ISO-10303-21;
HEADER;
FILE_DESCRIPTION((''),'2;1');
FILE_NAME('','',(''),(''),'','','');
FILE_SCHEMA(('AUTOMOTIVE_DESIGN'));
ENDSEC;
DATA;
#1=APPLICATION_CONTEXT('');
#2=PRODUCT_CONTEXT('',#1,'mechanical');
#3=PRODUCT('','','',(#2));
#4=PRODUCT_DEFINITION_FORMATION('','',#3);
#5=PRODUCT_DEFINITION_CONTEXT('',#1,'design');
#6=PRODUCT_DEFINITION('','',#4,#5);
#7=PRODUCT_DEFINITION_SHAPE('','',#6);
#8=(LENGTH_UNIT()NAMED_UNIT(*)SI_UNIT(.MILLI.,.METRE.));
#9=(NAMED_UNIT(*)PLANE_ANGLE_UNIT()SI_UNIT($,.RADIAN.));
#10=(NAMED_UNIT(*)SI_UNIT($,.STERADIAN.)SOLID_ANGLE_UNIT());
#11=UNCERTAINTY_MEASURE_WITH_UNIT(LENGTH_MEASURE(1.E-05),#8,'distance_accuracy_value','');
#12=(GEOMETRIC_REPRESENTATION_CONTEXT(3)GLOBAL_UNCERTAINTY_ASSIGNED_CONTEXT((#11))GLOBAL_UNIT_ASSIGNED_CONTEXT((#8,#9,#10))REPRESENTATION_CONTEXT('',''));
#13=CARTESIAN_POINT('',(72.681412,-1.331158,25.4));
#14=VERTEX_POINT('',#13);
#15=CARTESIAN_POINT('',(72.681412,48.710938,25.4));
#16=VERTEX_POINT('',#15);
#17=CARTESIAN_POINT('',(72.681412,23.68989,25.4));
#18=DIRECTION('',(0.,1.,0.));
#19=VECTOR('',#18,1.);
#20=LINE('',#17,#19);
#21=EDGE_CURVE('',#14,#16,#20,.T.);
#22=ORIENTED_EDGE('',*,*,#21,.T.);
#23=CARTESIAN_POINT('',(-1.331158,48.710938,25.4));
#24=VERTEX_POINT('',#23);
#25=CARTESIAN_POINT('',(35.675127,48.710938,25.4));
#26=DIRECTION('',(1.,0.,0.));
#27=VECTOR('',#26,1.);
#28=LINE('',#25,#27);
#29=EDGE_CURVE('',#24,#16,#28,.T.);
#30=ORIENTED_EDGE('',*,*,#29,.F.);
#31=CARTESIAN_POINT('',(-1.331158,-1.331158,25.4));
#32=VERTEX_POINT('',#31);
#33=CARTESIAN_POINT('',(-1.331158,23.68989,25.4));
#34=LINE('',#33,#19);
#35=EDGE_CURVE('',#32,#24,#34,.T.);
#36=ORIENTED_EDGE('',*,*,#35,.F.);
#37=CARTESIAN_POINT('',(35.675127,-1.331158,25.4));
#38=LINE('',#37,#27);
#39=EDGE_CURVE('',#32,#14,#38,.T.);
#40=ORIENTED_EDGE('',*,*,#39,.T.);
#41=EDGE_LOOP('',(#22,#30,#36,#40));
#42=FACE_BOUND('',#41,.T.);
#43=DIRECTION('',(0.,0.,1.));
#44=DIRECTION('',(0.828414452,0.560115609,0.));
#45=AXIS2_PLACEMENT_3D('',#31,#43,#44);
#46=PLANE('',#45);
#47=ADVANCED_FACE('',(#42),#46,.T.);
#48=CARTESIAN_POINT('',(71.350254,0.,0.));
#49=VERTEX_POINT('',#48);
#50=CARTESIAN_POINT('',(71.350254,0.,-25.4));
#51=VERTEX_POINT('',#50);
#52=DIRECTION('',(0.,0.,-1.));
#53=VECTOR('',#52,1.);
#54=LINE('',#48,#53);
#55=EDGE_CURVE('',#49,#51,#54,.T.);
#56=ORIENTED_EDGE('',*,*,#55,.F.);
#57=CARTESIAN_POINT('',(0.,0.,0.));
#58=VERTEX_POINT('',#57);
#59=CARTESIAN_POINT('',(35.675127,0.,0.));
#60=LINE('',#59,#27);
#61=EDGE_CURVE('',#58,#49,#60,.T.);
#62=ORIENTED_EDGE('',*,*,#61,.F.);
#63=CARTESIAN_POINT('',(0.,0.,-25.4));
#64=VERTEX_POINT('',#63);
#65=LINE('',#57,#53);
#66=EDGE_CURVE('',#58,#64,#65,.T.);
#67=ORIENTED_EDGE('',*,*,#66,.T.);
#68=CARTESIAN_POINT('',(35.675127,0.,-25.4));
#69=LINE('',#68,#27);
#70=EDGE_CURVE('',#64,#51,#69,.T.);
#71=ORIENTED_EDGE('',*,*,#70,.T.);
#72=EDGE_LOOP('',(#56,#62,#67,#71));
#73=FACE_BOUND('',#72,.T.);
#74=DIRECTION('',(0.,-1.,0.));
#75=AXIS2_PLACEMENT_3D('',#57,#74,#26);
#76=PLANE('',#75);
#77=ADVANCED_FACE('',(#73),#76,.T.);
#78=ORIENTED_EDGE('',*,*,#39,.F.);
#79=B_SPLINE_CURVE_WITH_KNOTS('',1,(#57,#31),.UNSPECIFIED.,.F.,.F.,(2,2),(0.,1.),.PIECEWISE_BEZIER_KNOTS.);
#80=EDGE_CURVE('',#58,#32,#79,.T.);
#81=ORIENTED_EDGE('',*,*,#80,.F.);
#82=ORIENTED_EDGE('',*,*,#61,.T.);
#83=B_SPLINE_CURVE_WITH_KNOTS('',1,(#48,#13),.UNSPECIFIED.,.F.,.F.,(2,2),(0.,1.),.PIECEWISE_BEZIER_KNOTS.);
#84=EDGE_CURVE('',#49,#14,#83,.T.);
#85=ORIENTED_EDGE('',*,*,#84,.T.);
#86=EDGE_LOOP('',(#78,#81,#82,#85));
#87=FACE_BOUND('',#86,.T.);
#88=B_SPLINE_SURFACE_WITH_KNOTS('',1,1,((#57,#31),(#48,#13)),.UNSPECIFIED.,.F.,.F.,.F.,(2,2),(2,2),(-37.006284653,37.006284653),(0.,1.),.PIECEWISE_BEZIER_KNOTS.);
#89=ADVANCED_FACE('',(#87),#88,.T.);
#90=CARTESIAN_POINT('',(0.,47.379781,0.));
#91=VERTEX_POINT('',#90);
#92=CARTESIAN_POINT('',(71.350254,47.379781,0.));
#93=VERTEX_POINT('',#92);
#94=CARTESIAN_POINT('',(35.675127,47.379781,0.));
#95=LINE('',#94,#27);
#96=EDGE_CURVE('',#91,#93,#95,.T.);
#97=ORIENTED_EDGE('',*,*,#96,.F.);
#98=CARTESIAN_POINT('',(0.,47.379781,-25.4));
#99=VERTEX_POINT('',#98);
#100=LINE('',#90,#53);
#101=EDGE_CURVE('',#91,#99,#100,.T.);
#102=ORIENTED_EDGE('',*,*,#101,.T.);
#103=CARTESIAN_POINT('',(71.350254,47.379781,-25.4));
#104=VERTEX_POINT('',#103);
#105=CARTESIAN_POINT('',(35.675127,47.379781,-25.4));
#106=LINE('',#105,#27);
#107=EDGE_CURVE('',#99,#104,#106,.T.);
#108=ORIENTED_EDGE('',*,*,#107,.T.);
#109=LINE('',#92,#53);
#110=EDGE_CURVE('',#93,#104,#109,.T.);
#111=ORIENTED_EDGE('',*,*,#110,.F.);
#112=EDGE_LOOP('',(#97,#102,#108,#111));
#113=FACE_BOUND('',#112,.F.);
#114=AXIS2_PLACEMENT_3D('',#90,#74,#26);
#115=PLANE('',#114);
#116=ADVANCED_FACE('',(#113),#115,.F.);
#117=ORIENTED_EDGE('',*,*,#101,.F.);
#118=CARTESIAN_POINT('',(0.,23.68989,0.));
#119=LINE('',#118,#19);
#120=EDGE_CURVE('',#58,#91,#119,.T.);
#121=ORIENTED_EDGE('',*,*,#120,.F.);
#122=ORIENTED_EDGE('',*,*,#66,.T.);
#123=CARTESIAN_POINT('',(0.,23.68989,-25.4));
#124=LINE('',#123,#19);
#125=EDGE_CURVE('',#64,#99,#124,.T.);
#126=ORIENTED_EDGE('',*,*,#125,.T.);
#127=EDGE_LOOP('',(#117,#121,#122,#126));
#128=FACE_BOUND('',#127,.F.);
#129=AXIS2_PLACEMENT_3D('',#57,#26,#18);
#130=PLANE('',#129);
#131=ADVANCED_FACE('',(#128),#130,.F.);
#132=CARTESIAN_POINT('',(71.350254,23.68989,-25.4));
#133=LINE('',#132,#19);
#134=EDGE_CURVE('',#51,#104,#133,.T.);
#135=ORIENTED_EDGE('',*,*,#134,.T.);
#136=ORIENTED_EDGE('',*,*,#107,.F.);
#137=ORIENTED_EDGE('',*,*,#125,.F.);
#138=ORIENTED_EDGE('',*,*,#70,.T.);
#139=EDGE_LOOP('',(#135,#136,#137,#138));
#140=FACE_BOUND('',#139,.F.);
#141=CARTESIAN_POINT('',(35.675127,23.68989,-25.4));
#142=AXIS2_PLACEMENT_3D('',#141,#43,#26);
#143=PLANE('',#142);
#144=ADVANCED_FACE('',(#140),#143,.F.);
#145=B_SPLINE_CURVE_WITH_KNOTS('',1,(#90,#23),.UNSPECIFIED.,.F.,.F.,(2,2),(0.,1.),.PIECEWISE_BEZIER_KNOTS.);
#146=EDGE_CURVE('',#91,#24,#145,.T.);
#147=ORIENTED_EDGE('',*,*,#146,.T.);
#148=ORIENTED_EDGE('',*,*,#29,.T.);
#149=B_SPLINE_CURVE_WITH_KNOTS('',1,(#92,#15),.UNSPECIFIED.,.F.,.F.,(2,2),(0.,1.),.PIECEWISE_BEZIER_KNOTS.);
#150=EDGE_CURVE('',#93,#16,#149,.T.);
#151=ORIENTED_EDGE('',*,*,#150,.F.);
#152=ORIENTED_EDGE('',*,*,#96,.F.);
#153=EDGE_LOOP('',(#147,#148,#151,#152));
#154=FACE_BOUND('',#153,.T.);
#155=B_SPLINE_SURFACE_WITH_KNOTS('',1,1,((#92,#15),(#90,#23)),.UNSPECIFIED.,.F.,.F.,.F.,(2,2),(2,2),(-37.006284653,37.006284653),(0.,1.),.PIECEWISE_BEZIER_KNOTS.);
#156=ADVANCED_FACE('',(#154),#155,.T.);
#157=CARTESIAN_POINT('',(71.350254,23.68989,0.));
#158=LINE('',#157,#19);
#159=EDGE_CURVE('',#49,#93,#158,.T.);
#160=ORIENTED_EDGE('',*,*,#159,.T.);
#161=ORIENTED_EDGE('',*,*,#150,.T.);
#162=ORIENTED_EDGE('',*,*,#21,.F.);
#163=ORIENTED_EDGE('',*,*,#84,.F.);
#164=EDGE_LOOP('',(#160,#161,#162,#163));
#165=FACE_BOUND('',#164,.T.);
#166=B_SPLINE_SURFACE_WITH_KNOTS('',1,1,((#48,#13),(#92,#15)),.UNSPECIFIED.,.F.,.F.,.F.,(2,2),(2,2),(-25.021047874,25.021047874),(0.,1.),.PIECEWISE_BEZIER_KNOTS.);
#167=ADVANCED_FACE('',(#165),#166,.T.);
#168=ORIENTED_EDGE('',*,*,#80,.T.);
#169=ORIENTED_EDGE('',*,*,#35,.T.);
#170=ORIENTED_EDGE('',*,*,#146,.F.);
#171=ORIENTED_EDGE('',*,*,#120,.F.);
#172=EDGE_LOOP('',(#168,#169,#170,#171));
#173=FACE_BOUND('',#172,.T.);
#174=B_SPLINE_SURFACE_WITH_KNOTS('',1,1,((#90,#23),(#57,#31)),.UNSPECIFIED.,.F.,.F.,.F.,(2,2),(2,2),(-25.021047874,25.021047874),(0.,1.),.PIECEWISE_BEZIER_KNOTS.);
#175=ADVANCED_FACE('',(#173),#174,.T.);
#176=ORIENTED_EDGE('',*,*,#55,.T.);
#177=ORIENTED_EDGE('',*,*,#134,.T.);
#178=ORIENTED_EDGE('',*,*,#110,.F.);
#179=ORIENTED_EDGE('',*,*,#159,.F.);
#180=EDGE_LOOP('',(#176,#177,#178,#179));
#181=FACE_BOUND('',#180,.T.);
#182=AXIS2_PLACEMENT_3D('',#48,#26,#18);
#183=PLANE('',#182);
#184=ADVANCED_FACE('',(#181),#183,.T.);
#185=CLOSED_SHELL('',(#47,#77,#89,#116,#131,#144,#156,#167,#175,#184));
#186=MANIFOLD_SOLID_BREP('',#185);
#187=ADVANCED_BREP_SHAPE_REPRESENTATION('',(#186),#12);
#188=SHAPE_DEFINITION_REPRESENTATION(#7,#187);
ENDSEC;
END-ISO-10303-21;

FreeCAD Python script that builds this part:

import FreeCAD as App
import Part
import Sketcher
Q = App.Units.Quantity

doc = App.newDocument("Part")
body = doc.addObject("PartDesign::Body", "Body")

sketch1 = doc.addObject("Sketcher::SketchObject", "Sketch")
body.addObject(sketch1)
sketch1.AttachmentSupport = (doc.XY_Plane, [""])
sketch1.MapMode = "FlatFace"
sketch1.addGeometry([
    Part.LineSegment(App.Vector(0, 47, 0), App.Vector(0, 0, 0)),
    Part.LineSegment(App.Vector(0, 0, 0), App.Vector(71, 0, 0)),
    Part.LineSegment(App.Vector(71, 0, 0), App.Vector(71, 47, 0)),
    Part.LineSegment(App.Vector(71, 47, 0), App.Vector(0, 47, 0)),
], False)
sketch1.addConstraint([
    Sketcher.Constraint("Coincident", 0, 2, 1, 1),
    Sketcher.Constraint("Coincident", 1, 2, 2, 1),
    Sketcher.Constraint("Coincident", 2, 2, 3, 1),
    Sketcher.Constraint("Coincident", 3, 2, 0, 1),
    Sketcher.Constraint("Vertical", 0),
    Sketcher.Constraint("Horizontal", 1),
    Sketcher.Constraint("Vertical", 2),
    Sketcher.Constraint("Horizontal", 3),
    Sketcher.Constraint("Coincident", 0, 2, -1, 1),
    Sketcher.Constraint("DistanceY", 0, 2, 0, 1, Q("47.379781 mm")),
    Sketcher.Constraint("DistanceX", 1, 1, 1, 2, Q("71.350254 mm")),
])
pad1 = doc.addObject("PartDesign::Pad", "Pad")
body.addObject(pad1)
pad1.Profile = sketch1
pad1.Length = Q("1 in")
pad1.TaperAngle = 3
pad2 = doc.addObject("PartDesign::Pad", "Pad001")
body.addObject(pad2)
pad2.Profile = sketch1
pad2.Length = Q("1 in")
pad2.Reversed = True

doc.recompute()
